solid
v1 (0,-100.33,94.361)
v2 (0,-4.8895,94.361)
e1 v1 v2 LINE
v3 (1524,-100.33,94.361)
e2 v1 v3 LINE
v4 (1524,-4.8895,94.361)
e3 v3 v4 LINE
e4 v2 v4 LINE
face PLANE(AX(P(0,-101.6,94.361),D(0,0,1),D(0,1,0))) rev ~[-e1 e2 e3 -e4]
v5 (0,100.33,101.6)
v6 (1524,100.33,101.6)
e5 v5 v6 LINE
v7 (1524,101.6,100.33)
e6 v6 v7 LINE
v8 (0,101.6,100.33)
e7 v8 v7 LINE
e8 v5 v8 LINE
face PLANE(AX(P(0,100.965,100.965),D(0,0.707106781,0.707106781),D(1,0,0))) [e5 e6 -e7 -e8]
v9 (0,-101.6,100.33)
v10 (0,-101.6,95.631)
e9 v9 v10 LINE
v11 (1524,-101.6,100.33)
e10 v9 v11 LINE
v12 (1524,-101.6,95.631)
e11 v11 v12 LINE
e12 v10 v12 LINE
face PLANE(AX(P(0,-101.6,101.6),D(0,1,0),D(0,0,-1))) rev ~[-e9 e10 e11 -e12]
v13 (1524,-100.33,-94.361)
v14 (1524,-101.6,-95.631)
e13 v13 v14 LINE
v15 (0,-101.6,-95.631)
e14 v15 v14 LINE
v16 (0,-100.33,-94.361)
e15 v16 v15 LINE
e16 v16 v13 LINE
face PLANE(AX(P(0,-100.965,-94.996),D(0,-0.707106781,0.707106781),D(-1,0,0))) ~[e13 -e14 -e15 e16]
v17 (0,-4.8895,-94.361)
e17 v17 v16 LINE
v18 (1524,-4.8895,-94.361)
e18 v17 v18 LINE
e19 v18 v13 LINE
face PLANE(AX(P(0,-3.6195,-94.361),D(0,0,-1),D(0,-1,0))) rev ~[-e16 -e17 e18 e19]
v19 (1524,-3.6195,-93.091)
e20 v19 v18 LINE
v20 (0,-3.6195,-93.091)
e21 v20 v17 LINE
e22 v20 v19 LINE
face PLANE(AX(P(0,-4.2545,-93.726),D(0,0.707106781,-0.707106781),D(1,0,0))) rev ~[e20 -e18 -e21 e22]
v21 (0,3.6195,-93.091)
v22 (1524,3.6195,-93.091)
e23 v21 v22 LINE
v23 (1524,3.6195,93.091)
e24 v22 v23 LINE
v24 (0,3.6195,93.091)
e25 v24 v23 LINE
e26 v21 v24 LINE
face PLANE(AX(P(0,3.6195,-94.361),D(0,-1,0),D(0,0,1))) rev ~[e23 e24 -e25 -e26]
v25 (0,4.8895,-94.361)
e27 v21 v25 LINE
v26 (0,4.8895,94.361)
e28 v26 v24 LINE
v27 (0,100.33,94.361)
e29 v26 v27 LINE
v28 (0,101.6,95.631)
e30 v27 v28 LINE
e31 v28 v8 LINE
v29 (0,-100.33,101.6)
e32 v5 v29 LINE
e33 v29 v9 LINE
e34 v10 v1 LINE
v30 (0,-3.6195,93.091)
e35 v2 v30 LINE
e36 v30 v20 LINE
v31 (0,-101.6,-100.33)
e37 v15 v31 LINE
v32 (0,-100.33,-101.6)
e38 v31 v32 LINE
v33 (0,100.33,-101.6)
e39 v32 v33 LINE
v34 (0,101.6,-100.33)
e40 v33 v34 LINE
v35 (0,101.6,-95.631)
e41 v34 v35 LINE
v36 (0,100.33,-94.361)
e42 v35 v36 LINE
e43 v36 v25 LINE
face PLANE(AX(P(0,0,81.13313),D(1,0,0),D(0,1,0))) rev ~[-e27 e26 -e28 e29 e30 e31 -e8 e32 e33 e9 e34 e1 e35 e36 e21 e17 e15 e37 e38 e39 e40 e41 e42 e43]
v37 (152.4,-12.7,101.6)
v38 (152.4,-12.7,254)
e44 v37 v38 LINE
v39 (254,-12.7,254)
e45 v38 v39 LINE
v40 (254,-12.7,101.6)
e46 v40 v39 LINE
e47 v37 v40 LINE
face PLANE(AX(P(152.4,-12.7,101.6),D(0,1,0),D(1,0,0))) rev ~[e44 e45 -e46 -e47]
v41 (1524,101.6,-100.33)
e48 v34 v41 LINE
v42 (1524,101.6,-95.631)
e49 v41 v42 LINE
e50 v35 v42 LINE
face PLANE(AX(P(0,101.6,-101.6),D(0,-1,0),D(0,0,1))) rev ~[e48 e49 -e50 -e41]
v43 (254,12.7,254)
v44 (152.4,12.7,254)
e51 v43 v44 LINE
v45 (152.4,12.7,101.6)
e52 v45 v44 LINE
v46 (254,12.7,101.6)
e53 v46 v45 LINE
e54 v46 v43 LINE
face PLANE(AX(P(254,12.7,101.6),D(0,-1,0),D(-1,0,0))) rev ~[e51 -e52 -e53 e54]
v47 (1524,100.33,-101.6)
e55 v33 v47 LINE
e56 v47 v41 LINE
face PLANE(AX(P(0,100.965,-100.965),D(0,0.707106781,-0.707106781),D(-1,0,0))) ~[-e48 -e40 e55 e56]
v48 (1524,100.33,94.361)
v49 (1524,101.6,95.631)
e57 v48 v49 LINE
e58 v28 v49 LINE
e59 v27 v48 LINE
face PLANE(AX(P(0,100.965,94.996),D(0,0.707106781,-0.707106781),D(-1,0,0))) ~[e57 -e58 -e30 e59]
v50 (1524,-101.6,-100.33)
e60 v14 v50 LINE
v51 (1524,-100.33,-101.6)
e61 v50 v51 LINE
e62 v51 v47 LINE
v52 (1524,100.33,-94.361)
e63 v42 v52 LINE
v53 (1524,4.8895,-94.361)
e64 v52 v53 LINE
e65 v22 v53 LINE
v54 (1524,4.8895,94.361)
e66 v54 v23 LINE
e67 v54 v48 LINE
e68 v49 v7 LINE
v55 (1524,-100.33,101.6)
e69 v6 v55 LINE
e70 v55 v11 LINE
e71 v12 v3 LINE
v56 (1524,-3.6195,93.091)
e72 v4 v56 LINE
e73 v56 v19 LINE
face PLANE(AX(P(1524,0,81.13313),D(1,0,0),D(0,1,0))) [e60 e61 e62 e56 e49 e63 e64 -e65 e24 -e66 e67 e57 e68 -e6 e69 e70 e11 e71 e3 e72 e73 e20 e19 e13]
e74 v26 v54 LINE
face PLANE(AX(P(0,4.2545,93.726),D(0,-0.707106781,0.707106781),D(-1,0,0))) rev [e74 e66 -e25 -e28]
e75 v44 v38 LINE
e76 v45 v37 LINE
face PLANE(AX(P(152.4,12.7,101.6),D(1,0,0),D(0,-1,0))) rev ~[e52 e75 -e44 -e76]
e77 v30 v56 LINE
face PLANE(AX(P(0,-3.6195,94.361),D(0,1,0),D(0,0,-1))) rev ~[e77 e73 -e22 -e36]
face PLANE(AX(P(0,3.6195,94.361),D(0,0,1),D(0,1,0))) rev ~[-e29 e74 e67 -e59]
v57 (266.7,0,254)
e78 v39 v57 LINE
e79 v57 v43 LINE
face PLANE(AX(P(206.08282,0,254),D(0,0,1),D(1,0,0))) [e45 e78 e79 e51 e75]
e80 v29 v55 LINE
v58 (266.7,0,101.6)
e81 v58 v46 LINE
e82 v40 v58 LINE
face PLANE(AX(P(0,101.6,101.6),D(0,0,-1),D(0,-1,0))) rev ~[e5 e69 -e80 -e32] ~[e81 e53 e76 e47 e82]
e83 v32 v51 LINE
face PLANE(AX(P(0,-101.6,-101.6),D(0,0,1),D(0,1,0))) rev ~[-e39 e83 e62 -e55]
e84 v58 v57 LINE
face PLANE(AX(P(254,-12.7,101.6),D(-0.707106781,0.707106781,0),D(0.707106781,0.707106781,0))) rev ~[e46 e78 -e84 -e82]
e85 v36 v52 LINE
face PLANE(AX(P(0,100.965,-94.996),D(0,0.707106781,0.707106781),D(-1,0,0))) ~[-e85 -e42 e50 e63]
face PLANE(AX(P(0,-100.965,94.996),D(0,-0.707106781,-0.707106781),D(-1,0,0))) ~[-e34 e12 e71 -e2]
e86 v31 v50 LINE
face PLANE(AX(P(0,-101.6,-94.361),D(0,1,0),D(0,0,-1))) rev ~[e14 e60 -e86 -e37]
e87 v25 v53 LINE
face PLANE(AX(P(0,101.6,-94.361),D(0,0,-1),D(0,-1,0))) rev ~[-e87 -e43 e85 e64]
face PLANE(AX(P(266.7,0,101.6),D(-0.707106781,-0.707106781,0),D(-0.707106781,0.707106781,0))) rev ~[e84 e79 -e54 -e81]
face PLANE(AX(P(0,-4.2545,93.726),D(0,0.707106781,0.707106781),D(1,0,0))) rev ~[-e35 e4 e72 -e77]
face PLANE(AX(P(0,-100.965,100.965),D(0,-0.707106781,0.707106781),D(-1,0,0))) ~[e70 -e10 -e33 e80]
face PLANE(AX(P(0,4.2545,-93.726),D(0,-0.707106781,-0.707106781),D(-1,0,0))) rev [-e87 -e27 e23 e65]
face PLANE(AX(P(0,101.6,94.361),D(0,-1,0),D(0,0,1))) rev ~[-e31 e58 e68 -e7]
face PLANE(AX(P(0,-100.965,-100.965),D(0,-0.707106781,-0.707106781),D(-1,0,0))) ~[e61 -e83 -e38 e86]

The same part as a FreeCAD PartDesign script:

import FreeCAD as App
import Part
import Sketcher
from FreeCAD import Vector
Q = App.Units.Quantity


def edges_at(feature, points):
    """Names of the edges that pass closest to the given points."""
    edges = feature.Shape.Edges
    near = lambda p: min(range(len(edges)), key=lambda i: edges[i].distToShape(Part.Vertex(*p))[0])
    return sorted({f"Edge{near(p) + 1}" for p in points})


def add_polygon(sketch, points):
    """Adds a closed chain of lines whose ends are joined by coincident constraints."""
    first, n = sketch.GeometryCount, len(points)
    for a, b in zip(points, points[1:] + points[:1]):
        sketch.addGeometry(Part.LineSegment(App.Vector(*a, 0), App.Vector(*b, 0)), False)
    for i in range(n):
        sketch.addConstraint(Sketcher.Constraint("Coincident", first + i, 2, first + (i + 1) % n, 1))

doc = App.newDocument("Part")
body = doc.addObject("PartDesign::Body", "Body")

sketch1 = body.newObject("Sketcher::SketchObject", "Sketch")
sketch1.AttachmentSupport = (doc.getObject("YZ_Plane"), [""])
sketch1.MapMode = "FlatFace"
add_polygon(sketch1, [(102, 102), (-102, 102), (-102, 94), (-4, 94), (-4, -94), (-102, -94), (-102, -102), (102, -102), (102, -94), (4, -94), (4, 94), (102, 94)])
sketch1.addConstraint(Sketcher.Constraint("Horizontal", 0))
sketch1.addConstraint(Sketcher.Constraint("Vertical", 1))
sketch1.addConstraint(Sketcher.Constraint("Horizontal", 2))
sketch1.addConstraint(Sketcher.Constraint("Vertical", 3))
sketch1.addConstraint(Sketcher.Constraint("Horizontal", 4))
sketch1.addConstraint(Sketcher.Constraint("Vertical", 5))
sketch1.addConstraint(Sketcher.Constraint("Horizontal", 6))
sketch1.addConstraint(Sketcher.Constraint("Vertical", 7))
sketch1.addConstraint(Sketcher.Constraint("Horizontal", 8))
sketch1.addConstraint(Sketcher.Constraint("Vertical", 9))
sketch1.addConstraint(Sketcher.Constraint("Horizontal", 10))
sketch1.addConstraint(Sketcher.Constraint("Vertical", 11))
sketch1.addConstraint(Sketcher.Constraint("Symmetric", 0, 2, 6, 2, -1, 1))
sketch1.addConstraint(Sketcher.Constraint("Symmetric", 2, 2, 8, 2, -1, 1))
sketch1.addConstraint(Sketcher.Constraint("Symmetric", 4, 2, 10, 2, -1, 1))
sketch1.addConstraint(Sketcher.Constraint("Symmetric", 4, 2, 7, 2, -2))
sketch1.addConstraint(Sketcher.Constraint("DistanceX", 0, 2, 0, 1, Q("8 in")))
sketch1.addConstraint(Sketcher.Constraint("DistanceY", -1, 1, 0, 2, Q("4 in")))
sketch1.addConstraint(Sketcher.Constraint("DistanceY", 3, 2, 3, 1, Q("7.43 in")))
sketch1.addConstraint(Sketcher.Constraint("DistanceX", 2, 1, 2, 2, Q("3.8575 in")))
pad1 = body.newObject("PartDesign::Pad", "Pad")
pad1.Profile = sketch1
pad1.Length = Q("60 in")
doc.recompute()

chamfer = body.newObject("PartDesign::Chamfer", "Chamfer")
chamfer.Base = (pad1, edges_at(pad1, [
    (762, -101.6, 101.6),
    (762, -101.6, 94.361),
    (762, 101.6, 101.6),
    (762, 101.6, 94.361),
    (762, 101.6, -94.361),
    (762, 101.6, -101.6),
    (762, -101.6, -94.361),
    (762, -101.6, -101.6),
]))
chamfer.Size = Q("0.05 in")
doc.recompute()

chamfer2 = body.newObject("PartDesign::Chamfer", "Chamfer001")
chamfer2.Base = (chamfer, edges_at(chamfer, [
    (762, -3.619, 94.361),
    (762, 3.619, 94.361),
    (762, 3.619, -94.361),
    (762, -3.619, -94.361),
]))
chamfer2.Size = Q("0.05 in")

sketch2 = body.newObject("Sketcher::SketchObject", "Sketch001")
sketch2.AttachmentSupport = (doc.getObject("XY_Plane"), [""])
sketch2.MapMode = "FlatFace"
sketch2.AttachmentOffset = App.Placement(Vector(0, 0, 4 * 25.4), App.Rotation())
add_polygon(sketch2, [(152.4, 12.7), (152.4, -12.7), (254, -12.7), (266.7, 0), (254, 12.7)])
sketch2.addConstraint(Sketcher.Constraint("Vertical", 0))
sketch2.addConstraint(Sketcher.Constraint("Horizontal", 1))
sketch2.addConstraint(Sketcher.Constraint("Horizontal", 4))
sketch2.addConstraint(Sketcher.Constraint("Symmetric", 1, 2, 3, 2, -1))
sketch2.addConstraint(Sketcher.Constraint("PointOnObject", 2, 2, -1))
sketch2.addConstraint(Sketcher.Constraint("Perpendicular", 2, 3))
sketch2.addConstraint(Sketcher.Constraint("DistanceX", 1, 1, 1, 2, Q("4 in")))
sketch2.addConstraint(Sketcher.Constraint("DistanceY", 0, 2, 0, 1, Q("1 in")))
sketch2.addConstraint(Sketcher.Constraint("DistanceX", -1, 1, 0, 2, Q("6 in")))
pad2 = body.newObject("PartDesign::Pad", "Pad001")
pad2.Profile = sketch2
pad2.Length = Q("6 in")

doc.recompute()
